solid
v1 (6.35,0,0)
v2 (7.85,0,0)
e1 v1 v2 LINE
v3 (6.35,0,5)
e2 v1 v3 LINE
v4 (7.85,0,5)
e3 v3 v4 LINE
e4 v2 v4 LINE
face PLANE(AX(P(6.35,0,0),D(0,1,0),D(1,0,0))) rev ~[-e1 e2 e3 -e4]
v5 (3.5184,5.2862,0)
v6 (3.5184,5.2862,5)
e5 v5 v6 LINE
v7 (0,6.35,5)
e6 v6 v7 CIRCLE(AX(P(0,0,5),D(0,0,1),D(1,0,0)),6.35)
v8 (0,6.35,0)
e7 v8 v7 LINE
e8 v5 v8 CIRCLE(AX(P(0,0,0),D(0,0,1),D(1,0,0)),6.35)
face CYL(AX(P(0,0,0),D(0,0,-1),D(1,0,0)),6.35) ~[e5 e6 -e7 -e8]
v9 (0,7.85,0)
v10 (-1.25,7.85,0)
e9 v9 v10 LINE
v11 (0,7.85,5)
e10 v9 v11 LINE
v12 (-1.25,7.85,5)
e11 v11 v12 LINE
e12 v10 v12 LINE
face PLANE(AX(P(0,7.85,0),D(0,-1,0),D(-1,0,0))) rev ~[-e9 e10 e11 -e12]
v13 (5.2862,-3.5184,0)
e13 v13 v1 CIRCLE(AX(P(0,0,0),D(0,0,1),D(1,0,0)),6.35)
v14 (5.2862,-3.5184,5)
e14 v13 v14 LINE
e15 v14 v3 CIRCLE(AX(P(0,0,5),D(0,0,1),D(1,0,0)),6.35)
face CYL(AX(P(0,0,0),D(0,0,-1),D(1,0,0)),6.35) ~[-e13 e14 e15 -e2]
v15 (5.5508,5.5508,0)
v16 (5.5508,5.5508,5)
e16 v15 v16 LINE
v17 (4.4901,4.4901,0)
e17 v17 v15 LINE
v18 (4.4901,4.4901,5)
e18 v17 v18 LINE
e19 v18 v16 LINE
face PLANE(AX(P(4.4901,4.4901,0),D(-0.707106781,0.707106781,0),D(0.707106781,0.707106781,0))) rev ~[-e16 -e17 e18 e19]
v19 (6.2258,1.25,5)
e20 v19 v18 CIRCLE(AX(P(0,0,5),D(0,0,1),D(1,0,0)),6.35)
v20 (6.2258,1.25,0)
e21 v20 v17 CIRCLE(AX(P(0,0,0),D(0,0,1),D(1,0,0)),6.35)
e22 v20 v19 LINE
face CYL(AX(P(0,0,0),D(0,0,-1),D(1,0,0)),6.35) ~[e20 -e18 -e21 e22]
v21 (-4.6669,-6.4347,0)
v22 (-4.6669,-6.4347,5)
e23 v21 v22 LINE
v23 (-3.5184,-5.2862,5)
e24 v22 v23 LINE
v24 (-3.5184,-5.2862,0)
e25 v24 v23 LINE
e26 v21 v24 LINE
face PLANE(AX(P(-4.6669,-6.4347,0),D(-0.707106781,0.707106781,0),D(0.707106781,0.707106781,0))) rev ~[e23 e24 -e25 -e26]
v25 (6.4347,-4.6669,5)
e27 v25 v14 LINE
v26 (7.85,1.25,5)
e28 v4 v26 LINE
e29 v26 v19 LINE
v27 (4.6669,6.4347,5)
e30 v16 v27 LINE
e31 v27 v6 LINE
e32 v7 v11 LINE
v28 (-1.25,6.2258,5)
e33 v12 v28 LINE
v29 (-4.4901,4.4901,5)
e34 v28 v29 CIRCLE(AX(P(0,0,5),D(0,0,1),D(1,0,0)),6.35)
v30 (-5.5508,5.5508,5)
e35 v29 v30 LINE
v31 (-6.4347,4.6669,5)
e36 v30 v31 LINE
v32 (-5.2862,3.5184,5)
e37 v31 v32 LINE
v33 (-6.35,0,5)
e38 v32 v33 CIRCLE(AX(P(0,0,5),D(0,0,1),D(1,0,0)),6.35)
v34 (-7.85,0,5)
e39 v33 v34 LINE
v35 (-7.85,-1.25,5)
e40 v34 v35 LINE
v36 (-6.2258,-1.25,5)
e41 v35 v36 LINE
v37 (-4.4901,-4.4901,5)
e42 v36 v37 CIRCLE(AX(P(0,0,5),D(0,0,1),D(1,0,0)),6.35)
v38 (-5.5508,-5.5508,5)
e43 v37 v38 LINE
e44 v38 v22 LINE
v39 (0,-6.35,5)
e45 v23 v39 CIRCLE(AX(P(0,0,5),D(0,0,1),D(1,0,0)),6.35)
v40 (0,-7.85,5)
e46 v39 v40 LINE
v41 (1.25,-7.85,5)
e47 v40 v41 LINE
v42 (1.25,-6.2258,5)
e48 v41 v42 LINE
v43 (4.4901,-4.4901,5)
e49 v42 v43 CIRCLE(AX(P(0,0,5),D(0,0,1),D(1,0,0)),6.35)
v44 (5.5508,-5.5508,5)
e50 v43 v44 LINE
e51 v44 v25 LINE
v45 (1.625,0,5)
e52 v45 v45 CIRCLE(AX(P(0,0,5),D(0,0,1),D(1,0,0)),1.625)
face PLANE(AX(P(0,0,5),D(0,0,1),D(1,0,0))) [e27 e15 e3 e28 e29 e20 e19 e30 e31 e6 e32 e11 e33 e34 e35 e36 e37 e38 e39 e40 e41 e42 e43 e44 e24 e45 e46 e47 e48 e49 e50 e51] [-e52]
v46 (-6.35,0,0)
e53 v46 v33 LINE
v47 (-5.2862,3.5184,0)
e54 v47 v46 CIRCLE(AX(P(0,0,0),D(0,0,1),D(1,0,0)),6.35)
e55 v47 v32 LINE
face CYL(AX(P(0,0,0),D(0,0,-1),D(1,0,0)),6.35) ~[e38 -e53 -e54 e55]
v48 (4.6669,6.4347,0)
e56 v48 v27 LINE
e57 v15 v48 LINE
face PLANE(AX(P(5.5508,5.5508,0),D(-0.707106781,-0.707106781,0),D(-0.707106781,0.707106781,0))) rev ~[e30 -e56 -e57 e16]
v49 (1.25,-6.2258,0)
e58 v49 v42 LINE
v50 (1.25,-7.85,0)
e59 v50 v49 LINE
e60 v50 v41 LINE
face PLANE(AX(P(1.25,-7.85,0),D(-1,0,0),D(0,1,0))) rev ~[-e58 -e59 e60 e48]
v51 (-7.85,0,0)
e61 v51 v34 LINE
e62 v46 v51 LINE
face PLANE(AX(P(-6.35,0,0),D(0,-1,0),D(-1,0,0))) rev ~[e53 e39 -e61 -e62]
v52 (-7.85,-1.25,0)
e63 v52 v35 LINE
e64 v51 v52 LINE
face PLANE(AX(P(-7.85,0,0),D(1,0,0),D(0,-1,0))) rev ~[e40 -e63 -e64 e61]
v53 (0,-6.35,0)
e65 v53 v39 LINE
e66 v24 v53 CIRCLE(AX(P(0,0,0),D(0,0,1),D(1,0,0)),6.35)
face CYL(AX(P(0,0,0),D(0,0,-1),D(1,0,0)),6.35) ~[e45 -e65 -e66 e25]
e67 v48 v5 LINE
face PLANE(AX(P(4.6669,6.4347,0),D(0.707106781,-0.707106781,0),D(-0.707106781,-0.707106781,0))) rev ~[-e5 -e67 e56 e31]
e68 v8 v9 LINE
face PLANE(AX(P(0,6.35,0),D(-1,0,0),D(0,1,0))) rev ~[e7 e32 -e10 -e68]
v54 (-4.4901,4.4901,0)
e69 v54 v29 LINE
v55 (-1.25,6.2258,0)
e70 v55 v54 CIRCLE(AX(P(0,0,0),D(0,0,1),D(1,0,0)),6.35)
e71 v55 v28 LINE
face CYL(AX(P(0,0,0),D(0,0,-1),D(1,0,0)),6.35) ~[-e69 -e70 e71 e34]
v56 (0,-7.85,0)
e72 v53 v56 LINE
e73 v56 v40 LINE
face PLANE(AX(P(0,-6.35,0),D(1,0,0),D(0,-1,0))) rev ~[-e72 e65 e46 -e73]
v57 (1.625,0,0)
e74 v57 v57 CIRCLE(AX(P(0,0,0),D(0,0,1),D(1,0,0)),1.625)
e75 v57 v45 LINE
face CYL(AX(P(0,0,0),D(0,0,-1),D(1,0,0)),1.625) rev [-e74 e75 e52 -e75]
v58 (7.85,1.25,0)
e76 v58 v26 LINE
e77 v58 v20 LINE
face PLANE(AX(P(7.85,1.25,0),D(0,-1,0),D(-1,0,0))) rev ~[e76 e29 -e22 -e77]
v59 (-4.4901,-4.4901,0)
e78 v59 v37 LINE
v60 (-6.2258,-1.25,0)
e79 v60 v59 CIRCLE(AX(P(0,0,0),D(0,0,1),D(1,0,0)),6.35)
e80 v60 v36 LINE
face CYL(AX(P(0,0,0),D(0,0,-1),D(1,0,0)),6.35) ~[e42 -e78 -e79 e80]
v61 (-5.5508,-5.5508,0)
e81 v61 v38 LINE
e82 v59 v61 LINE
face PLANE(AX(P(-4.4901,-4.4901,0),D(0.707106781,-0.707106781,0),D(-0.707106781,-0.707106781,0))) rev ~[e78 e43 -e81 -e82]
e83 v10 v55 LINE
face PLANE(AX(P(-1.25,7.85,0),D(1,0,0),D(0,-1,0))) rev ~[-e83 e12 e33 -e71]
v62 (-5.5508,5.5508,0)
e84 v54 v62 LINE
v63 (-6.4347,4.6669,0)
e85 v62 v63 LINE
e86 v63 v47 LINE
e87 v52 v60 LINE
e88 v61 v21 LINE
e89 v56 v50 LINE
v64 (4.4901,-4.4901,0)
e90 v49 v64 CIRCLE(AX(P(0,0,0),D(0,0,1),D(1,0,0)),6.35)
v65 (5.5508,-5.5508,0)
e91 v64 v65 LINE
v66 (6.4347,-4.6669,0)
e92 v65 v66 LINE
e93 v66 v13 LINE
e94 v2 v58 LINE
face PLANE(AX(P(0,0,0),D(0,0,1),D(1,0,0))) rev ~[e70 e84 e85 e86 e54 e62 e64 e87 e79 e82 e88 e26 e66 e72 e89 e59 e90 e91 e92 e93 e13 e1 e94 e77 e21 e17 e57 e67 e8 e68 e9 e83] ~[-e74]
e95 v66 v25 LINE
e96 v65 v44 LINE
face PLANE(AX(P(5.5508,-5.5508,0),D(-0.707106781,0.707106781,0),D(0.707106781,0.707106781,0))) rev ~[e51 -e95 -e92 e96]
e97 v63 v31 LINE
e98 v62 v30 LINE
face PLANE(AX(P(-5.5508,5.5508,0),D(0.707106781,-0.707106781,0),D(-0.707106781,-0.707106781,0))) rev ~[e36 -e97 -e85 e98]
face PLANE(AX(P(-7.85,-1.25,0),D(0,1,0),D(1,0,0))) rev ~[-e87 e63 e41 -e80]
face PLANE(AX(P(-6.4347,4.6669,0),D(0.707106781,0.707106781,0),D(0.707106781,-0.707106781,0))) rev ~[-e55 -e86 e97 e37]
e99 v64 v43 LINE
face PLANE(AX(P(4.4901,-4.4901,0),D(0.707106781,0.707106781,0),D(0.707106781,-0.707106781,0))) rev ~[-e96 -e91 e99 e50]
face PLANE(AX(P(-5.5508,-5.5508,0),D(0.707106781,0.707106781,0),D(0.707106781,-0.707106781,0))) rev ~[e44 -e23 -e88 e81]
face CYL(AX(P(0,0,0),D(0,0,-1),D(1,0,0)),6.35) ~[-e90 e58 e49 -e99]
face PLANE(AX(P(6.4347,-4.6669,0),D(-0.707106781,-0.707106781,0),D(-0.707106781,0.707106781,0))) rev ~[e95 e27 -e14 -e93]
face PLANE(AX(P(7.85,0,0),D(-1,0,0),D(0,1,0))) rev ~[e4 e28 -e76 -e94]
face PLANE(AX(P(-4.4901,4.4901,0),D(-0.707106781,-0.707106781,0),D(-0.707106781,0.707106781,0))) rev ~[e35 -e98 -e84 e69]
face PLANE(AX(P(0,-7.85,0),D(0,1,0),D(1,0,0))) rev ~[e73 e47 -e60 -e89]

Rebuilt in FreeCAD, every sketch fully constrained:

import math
import FreeCAD as App
import Part
import Sketcher
Q = App.Units.Quantity

doc = App.newDocument("Part")
body = doc.addObject("PartDesign::Body", "Body")

# Sketch on XY plane
sketch1 = body.newObject("Sketcher::SketchObject", "Sketch")
sketch1.AttachmentSupport = (doc.getObject("XY_Plane"), [""])
sketch1.MapMode = "FlatFace"
sketch1.addGeometry(Part.ArcOfCircle(Part.Circle(App.Vector(0, 0, 0), App.Vector(0, 0, 1), 6.35), math.radians(-33.647025), math.radians(0)), False)
sketch1.addGeometry(Part.LineSegment(App.Vector(6.35, 0, 0), App.Vector(7.85, 0, 0)), False)
sketch1.addGeometry(Part.LineSegment(App.Vector(7.85, 0, 0), App.Vector(7.85, 1.25, 0)), False)
sketch1.addGeometry(Part.LineSegment(App.Vector(7.85, 1.25, 0), App.Vector(6.2258, 1.25, 0)), False)
sketch1.addGeometry(Part.ArcOfCircle(Part.Circle(App.Vector(0, 0, 0), App.Vector(0, 0, 1), 6.35), math.radians(11.352755), math.radians(45)), False)
sketch1.addGeometry(Part.LineSegment(App.Vector(4.4901, 4.4901, 0), App.Vector(5.5508, 5.5508, 0)), False)
sketch1.addGeometry(Part.LineSegment(App.Vector(5.5508, 5.5508, 0), App.Vector(4.6669, 6.4347, 0)), False)
sketch1.addGeometry(Part.LineSegment(App.Vector(4.6669, 6.4347, 0), App.Vector(3.5184, 5.2862, 0)), False)
sketch1.addGeometry(Part.ArcOfCircle(Part.Circle(App.Vector(0, 0, 0), App.Vector(0, 0, 1), 6.35), math.radians(56.352975), math.radians(90)), False)
sketch1.addGeometry(Part.LineSegment(App.Vector(0, 6.35, 0), App.Vector(0, 7.85, 0)), False)
sketch1.addGeometry(Part.LineSegment(App.Vector(0, 7.85, 0), App.Vector(-1.25, 7.85, 0)), False)
sketch1.addGeometry(Part.LineSegment(App.Vector(-1.25, 7.85, 0), App.Vector(-1.25, 6.2258, 0)), False)
sketch1.addGeometry(Part.ArcOfCircle(Part.Circle(App.Vector(0, 0, 0), App.Vector(0, 0, 1), 6.35), math.radians(101.352755), math.radians(135)), False)
sketch1.addGeometry(Part.LineSegment(App.Vector(-4.4901, 4.4901, 0), App.Vector(-5.5508, 5.5508, 0)), False)
sketch1.addGeometry(Part.LineSegment(App.Vector(-5.5508, 5.5508, 0), App.Vector(-6.4347, 4.6669, 0)), False)
sketch1.addGeometry(Part.LineSegment(App.Vector(-6.4347, 4.6669, 0), App.Vector(-5.2862, 3.5184, 0)), False)
sketch1.addGeometry(Part.ArcOfCircle(Part.Circle(App.Vector(0, 0, 0), App.Vector(0, 0, 1), 6.35), math.radians(146.352975), math.radians(180)), False)
sketch1.addGeometry(Part.LineSegment(App.Vector(-6.35, 0, 0), App.Vector(-7.85, 0, 0)), False)
sketch1.addGeometry(Part.LineSegment(App.Vector(-7.85, 0, 0), App.Vector(-7.85, -1.25, 0)), False)
sketch1.addGeometry(Part.LineSegment(App.Vector(-7.85, -1.25, 0), App.Vector(-6.2258, -1.25, 0)), False)
sketch1.addGeometry(Part.ArcOfCircle(Part.Circle(App.Vector(0, 0, 0), App.Vector(0, 0, 1), 6.35), math.radians(-168.647245), math.radians(-135)), False)
sketch1.addGeometry(Part.LineSegment(App.Vector(-4.4901, -4.4901, 0), App.Vector(-5.5508, -5.5508, 0)), False)
sketch1.addGeometry(Part.LineSegment(App.Vector(-5.5508, -5.5508, 0), App.Vector(-4.6669, -6.4347, 0)), False)
sketch1.addGeometry(Part.LineSegment(App.Vector(-4.6669, -6.4347, 0), App.Vector(-3.5184, -5.2862, 0)), False)
sketch1.addGeometry(Part.ArcOfCircle(Part.Circle(App.Vector(0, 0, 0), App.Vector(0, 0, 1), 6.35), math.radians(-123.647025), math.radians(-90)), False)
sketch1.addGeometry(Part.LineSegment(App.Vector(0, -6.35, 0), App.Vector(0, -7.85, 0)), False)
sketch1.addGeometry(Part.LineSegment(App.Vector(0, -7.85, 0), App.Vector(1.25, -7.85, 0)), False)
sketch1.addGeometry(Part.LineSegment(App.Vector(1.25, -7.85, 0), App.Vector(1.25, -6.2258, 0)), False)
sketch1.addGeometry(Part.ArcOfCircle(Part.Circle(App.Vector(0, 0, 0), App.Vector(0, 0, 1), 6.35), math.radians(-78.647245), math.radians(-45)), False)
sketch1.addGeometry(Part.LineSegment(App.Vector(4.4901, -4.4901, 0), App.Vector(5.5508, -5.5508, 0)), False)
sketch1.addGeometry(Part.LineSegment(App.Vector(5.5508, -5.5508, 0), App.Vector(6.4347, -4.6669, 0)), False)
sketch1.addGeometry(Part.LineSegment(App.Vector(6.4347, -4.6669, 0), App.Vector(5.2862, -3.5184, 0)), False)
sketch1.addGeometry(Part.Circle(App.Vector(0, 0, 0), App.Vector(0, 0, 1), 1.625), False)
sketch1.addConstraint(Sketcher.Constraint("Coincident", 0, 2, 1, 1))
sketch1.addConstraint(Sketcher.Constraint("Coincident", 1, 2, 2, 1))
sketch1.addConstraint(Sketcher.Constraint("Coincident", 2, 2, 3, 1))
sketch1.addConstraint(Sketcher.Constraint("Coincident", 3, 2, 4, 1))
sketch1.addConstraint(Sketcher.Constraint("Coincident", 4, 2, 5, 1))
sketch1.addConstraint(Sketcher.Constraint("Coincident", 5, 2, 6, 1))
sketch1.addConstraint(Sketcher.Constraint("Coincident", 6, 2, 7, 1))
sketch1.addConstraint(Sketcher.Constraint("Coincident", 7, 2, 8, 1))
sketch1.addConstraint(Sketcher.Constraint("Coincident", 8, 2, 9, 1))
sketch1.addConstraint(Sketcher.Constraint("Coincident", 9, 2, 10, 1))
sketch1.addConstraint(Sketcher.Constraint("Coincident", 10, 2, 11, 1))
sketch1.addConstraint(Sketcher.Constraint("Coincident", 11, 2, 12, 1))
sketch1.addConstraint(Sketcher.Constraint("Coincident", 12, 2, 13, 1))
sketch1.addConstraint(Sketcher.Constraint("Coincident", 13, 2, 14, 1))
sketch1.addConstraint(Sketcher.Constraint("Coincident", 14, 2, 15, 1))
sketch1.addConstraint(Sketcher.Constraint("Coincident", 15, 2, 16, 1))
sketch1.addConstraint(Sketcher.Constraint("Coincident", 16, 2, 17, 1))
sketch1.addConstraint(Sketcher.Constraint("Coincident", 17, 2, 18, 1))
sketch1.addConstraint(Sketcher.Constraint("Coincident", 18, 2, 19, 1))
sketch1.addConstraint(Sketcher.Constraint("Coincident", 19, 2, 20, 1))
sketch1.addConstraint(Sketcher.Constraint("Coincident", 20, 2, 21, 1))
sketch1.addConstraint(Sketcher.Constraint("Coincident", 21, 2, 22, 1))
sketch1.addConstraint(Sketcher.Constraint("Coincident", 22, 2, 23, 1))
sketch1.addConstraint(Sketcher.Constraint("Coincident", 23, 2, 24, 1))
sketch1.addConstraint(Sketcher.Constraint("Coincident", 24, 2, 25, 1))
sketch1.addConstraint(Sketcher.Constraint("Coincident", 25, 2, 26, 1))
sketch1.addConstraint(Sketcher.Constraint("Coincident", 26, 2, 27, 1))
sketch1.addConstraint(Sketcher.Constraint("Coincident", 27, 2, 28, 1))
sketch1.addConstraint(Sketcher.Constraint("Coincident", 28, 2, 29, 1))
sketch1.addConstraint(Sketcher.Constraint("Coincident", 29, 2, 30, 1))
sketch1.addConstraint(Sketcher.Constraint("Coincident", 30, 2, 31, 1))
sketch1.addConstraint(Sketcher.Constraint("Coincident", 31, 2, 0, 1))
sketch1.addConstraint(Sketcher.Constraint("Horizontal", 1))
sketch1.addConstraint(Sketcher.Constraint("Vertical", 2))
sketch1.addConstraint(Sketcher.Constraint("Horizontal", 3))
sketch1.addConstraint(Sketcher.Constraint("Vertical", 9))
sketch1.addConstraint(Sketcher.Constraint("Horizontal", 10))
sketch1.addConstraint(Sketcher.Constraint("Vertical", 11))
sketch1.addConstraint(Sketcher.Constraint("Horizontal", 17))
sketch1.addConstraint(Sketcher.Constraint("Vertical", 18))
sketch1.addConstraint(Sketcher.Constraint("Horizontal", 19))
sketch1.addConstraint(Sketcher.Constraint("Vertical", 25))
sketch1.addConstraint(Sketcher.Constraint("Horizontal", 26))
sketch1.addConstraint(Sketcher.Constraint("Vertical", 27))
sketch1.addConstraint(Sketcher.Constraint("Coincident", 0, 3, -1, 1))
sketch1.addConstraint(Sketcher.Constraint("Coincident", 4, 3, -1, 1))
sketch1.addConstraint(Sketcher.Constraint("Coincident", 8, 3, -1, 1))
sketch1.addConstraint(Sketcher.Constraint("Coincident", 12, 3, -1, 1))
sketch1.addConstraint(Sketcher.Constraint("Coincident", 16, 3, -1, 1))
sketch1.addConstraint(Sketcher.Constraint("Coincident", 20, 3, -1, 1))
sketch1.addConstraint(Sketcher.Constraint("Coincident", 24, 3, -1, 1))
sketch1.addConstraint(Sketcher.Constraint("Coincident", 28, 3, -1, 1))
sketch1.addConstraint(Sketcher.Constraint("Coincident", 32, 3, -1, 1))
sketch1.addConstraint(Sketcher.Constraint("Equal", 0, 4))
sketch1.addConstraint(Sketcher.Constraint("Equal", 4, 8))
sketch1.addConstraint(Sketcher.Constraint("Equal", 8, 12))
sketch1.addConstraint(Sketcher.Constraint("Equal", 12, 16))
sketch1.addConstraint(Sketcher.Constraint("Equal", 16, 20))
sketch1.addConstraint(Sketcher.Constraint("Equal", 20, 24))
sketch1.addConstraint(Sketcher.Constraint("Equal", 24, 28))
sketch1.addConstraint(Sketcher.Constraint("Symmetric", 1, 2, 17, 2, -1, 1))
sketch1.addConstraint(Sketcher.Constraint("Symmetric", 5, 2, 21, 2, -1, 1))
sketch1.addConstraint(Sketcher.Constraint("Symmetric", 6, 2, 22, 2, -1, 1))
sketch1.addConstraint(Sketcher.Constraint("Symmetric", 9, 2, 25, 2, -1, 1))
sketch1.addConstraint(Sketcher.Constraint("Symmetric", 13, 2, 29, 2, -1, 1))
sketch1.addConstraint(Sketcher.Constraint("Symmetric", 14, 2, 30, 2, -1, 1))
sketch1.addConstraint(Sketcher.Constraint("Symmetric", 5, 2, 13, 2, -2))
sketch1.addConstraint(Sketcher.Constraint("PointOnObject", 0, 2, -1))
sketch1.addConstraint(Sketcher.Constraint("PointOnObject", 8, 2, -2))
sketch1.addConstraint(Sketcher.Constraint("Perpendicular", 5, 6))
sketch1.addConstraint(Sketcher.Constraint("Perpendicular", 6, 7))
sketch1.addConstraint(Sketcher.Constraint("Perpendicular", 7, 13))
sketch1.addConstraint(Sketcher.Constraint("Perpendicular", 13, 14))
sketch1.addConstraint(Sketcher.Constraint("Perpendicular", 14, 15))
sketch1.addConstraint(Sketcher.Constraint("Perpendicular", 15, 21))
sketch1.addConstraint(Sketcher.Constraint("Perpendicular", 22, 23))
sketch1.addConstraint(Sketcher.Constraint("Perpendicular", 23, 29))
sketch1.addConstraint(Sketcher.Constraint("Perpendicular", 30, 31))
sketch1.addConstraint(Sketcher.Constraint("Horizontal", 4, 2, 12, 2))
sketch1.addConstraint(Sketcher.Constraint("Equal", 3, 19))
sketch1.addConstraint(Sketcher.Constraint("Equal", 10, 26))
sketch1.addConstraint(Sketcher.Constraint("Equal", 26, 2))
sketch1.addConstraint(Sketcher.Constraint("Equal", 17, 9))
sketch1.addConstraint(Sketcher.Constraint("Equal", 6, 14))
sketch1.addConstraint(Sketcher.Constraint("Equal", 7, 15))
sketch1.addConstraint(Sketcher.Constraint("Diameter", 32, Q("3.25 mm")))
sketch1.addConstraint(Sketcher.Constraint("DistanceX", 1, 1, 1, 2, Q("1.5 mm")))
sketch1.addConstraint(Sketcher.Constraint("Distance", 5, Q("1.5 mm")))
sketch1.addConstraint(Sketcher.Constraint("Radius", 0, Q("6.35 mm")))
sketch1.addConstraint(Sketcher.Constraint("DistanceX", 10, 2, 10, 1, Q("1.25 mm")))
sketch1.addConstraint(Sketcher.Constraint("Distance", 6, Q("1.25 mm")))
pad1 = body.newObject("PartDesign::Pad", "Pad")
pad1.Profile = sketch1
pad1.Length = 5

doc.recompute()
